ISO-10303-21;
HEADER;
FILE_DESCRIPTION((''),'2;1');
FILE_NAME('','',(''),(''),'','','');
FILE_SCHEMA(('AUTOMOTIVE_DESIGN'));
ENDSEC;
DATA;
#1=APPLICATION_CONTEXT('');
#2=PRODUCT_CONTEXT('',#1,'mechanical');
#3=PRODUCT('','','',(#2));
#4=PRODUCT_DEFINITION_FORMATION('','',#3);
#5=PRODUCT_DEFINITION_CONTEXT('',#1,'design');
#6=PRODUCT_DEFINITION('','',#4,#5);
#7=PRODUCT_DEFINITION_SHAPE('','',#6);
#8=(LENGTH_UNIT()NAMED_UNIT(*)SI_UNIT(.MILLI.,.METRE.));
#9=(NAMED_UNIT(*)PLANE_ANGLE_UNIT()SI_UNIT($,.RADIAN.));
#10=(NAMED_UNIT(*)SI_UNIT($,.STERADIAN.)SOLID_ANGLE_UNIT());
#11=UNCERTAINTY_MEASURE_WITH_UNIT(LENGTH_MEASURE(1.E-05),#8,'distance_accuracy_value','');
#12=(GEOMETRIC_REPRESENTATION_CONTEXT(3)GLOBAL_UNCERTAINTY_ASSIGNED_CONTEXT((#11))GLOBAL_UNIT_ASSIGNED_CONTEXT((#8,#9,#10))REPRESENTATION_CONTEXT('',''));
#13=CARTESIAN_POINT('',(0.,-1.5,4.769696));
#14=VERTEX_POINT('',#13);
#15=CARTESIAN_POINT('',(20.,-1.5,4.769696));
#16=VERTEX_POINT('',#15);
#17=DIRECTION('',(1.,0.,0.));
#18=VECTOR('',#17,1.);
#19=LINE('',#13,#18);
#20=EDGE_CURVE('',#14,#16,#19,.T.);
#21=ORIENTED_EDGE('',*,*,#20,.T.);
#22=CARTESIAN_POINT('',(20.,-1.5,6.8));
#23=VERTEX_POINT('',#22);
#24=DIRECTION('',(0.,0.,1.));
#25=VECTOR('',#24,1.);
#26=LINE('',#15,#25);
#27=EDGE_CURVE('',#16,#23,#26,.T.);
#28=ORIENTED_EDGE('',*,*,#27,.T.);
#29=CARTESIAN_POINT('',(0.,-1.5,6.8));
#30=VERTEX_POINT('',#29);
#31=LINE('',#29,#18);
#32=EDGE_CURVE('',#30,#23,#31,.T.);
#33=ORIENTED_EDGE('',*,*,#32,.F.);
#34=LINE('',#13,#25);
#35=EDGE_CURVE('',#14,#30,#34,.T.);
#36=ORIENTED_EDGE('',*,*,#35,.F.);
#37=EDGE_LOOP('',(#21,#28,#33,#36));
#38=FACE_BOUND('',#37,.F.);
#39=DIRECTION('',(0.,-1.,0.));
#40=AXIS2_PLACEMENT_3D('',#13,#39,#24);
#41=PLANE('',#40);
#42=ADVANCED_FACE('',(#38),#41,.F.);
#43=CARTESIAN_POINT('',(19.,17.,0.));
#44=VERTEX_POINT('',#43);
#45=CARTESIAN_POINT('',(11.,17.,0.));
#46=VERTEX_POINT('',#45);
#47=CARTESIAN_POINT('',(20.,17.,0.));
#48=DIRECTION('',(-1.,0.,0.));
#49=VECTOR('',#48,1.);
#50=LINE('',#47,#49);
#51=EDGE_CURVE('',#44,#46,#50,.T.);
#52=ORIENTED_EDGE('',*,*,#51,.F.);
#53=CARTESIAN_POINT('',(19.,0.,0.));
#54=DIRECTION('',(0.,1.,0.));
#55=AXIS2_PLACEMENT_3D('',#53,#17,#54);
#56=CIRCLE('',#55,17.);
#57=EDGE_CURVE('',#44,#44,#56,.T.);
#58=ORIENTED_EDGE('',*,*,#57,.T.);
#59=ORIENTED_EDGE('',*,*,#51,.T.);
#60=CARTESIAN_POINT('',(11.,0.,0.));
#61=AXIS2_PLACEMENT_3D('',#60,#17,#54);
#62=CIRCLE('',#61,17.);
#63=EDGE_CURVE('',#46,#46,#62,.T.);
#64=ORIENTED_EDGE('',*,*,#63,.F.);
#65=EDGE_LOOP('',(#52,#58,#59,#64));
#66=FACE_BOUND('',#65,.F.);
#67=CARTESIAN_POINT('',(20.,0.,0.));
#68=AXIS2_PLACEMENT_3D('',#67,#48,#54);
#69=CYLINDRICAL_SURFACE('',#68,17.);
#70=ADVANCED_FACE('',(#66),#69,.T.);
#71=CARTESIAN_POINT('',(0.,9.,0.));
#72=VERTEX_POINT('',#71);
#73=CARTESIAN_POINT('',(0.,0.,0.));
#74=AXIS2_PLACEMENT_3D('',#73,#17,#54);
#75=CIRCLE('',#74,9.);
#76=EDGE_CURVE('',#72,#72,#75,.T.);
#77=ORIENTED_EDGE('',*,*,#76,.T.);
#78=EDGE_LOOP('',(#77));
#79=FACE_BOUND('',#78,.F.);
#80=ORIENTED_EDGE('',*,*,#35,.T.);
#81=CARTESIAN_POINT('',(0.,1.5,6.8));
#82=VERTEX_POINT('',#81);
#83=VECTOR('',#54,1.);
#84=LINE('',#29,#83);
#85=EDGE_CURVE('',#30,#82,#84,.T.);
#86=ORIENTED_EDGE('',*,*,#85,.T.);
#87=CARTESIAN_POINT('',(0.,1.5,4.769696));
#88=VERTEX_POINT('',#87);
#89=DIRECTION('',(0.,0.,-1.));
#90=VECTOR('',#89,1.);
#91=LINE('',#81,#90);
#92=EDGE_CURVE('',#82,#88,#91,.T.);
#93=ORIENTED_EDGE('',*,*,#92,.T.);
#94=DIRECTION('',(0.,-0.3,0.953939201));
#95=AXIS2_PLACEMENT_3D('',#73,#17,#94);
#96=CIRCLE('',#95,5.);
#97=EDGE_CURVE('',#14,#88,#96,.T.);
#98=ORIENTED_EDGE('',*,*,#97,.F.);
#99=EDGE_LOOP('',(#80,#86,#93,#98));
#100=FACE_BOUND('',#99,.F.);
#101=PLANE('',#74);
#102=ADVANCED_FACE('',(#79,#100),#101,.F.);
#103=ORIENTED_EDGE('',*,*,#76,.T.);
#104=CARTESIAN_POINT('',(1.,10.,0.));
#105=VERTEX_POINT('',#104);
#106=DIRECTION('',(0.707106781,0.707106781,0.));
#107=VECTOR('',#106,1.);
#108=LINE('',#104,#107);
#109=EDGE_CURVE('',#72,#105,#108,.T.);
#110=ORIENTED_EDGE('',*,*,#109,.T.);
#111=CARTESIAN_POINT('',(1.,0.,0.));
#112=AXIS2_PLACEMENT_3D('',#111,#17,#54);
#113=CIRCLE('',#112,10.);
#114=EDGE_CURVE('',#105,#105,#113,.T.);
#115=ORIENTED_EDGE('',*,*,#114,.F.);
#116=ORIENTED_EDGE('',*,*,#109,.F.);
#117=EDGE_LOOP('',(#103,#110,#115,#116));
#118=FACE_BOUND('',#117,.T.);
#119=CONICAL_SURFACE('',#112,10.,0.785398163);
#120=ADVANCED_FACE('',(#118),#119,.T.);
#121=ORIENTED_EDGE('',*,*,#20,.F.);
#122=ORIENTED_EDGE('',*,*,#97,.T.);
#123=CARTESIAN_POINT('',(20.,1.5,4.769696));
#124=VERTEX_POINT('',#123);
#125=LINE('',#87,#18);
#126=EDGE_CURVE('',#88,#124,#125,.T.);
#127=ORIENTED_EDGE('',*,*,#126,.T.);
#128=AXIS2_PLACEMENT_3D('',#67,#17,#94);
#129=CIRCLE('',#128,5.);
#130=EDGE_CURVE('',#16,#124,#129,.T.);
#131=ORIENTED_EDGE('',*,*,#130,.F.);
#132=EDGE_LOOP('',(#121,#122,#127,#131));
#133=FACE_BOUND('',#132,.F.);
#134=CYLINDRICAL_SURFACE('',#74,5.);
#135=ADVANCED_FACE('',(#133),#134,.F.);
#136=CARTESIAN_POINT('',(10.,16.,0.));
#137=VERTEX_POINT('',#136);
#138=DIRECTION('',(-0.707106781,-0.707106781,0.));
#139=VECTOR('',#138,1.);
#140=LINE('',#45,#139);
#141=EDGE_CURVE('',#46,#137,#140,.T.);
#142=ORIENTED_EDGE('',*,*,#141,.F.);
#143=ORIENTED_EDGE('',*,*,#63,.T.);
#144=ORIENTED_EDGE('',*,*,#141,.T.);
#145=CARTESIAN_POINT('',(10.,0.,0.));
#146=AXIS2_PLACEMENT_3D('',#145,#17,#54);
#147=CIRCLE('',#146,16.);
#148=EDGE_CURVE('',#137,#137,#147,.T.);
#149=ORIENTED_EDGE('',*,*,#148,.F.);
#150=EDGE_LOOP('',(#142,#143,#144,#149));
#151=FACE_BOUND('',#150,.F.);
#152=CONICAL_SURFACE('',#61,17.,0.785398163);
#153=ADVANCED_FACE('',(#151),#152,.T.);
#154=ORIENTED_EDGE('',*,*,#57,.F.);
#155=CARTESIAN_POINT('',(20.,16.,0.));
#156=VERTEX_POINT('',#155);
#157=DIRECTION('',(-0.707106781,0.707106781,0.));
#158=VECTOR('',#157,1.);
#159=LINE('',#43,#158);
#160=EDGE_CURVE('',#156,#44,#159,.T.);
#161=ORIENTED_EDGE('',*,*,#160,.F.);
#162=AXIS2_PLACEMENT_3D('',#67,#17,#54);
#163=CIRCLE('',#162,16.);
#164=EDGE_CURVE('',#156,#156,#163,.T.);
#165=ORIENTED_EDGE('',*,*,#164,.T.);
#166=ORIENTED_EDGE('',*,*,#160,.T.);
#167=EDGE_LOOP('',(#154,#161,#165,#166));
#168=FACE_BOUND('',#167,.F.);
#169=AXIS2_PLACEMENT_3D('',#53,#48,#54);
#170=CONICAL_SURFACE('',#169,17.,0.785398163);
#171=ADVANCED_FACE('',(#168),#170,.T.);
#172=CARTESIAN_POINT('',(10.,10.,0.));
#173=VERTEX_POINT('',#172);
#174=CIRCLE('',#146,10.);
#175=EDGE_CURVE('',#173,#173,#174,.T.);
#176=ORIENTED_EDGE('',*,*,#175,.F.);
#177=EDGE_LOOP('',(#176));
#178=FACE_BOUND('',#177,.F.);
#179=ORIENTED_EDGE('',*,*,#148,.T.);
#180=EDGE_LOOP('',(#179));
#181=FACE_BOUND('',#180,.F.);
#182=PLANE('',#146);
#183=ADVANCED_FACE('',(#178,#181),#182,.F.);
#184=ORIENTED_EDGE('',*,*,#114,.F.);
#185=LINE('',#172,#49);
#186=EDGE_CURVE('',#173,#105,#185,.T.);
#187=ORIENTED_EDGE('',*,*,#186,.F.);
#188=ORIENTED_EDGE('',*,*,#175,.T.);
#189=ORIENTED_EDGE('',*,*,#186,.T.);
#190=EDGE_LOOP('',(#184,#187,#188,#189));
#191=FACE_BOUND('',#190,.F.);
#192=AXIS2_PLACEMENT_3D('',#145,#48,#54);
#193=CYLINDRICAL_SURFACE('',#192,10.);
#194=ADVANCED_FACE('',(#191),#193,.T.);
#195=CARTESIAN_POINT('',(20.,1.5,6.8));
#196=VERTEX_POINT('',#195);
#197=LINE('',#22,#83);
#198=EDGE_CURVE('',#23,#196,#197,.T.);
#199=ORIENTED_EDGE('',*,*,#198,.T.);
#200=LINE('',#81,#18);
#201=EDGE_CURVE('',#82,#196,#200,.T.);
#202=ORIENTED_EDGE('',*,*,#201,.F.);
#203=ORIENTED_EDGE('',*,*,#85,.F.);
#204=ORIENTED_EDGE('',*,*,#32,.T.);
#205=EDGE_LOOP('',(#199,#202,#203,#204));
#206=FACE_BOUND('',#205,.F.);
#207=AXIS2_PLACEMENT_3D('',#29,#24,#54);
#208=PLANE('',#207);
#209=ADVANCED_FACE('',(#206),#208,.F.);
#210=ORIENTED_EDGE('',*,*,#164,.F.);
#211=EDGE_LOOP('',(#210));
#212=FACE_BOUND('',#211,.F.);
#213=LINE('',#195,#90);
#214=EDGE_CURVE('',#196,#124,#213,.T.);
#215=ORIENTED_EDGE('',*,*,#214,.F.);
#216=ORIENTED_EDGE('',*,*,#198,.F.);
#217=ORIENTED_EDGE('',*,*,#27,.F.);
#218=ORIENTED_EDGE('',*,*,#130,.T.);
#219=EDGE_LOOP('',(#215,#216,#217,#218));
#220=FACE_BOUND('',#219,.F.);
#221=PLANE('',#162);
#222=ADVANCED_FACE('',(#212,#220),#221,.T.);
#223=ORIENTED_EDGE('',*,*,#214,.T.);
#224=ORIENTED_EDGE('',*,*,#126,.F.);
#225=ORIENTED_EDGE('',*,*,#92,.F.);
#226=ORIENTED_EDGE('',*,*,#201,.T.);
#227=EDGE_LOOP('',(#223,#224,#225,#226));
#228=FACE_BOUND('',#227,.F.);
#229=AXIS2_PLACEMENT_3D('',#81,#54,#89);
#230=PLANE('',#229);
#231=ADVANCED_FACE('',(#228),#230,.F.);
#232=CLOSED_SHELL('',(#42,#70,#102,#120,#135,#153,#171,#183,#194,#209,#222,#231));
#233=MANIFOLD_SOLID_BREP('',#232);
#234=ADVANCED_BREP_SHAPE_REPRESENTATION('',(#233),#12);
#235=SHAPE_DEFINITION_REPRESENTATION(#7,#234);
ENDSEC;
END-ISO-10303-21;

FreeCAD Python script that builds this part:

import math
import FreeCAD as App
import Part
import Sketcher
from FreeCAD import Vector
Q = App.Units.Quantity


def edges_at(feature, points):
    """Names of the edges that pass closest to the given points."""
    edges = feature.Shape.Edges
    near = lambda p: min(range(len(edges)), key=lambda i: edges[i].distToShape(Part.Vertex(*p))[0])
    return sorted({f"Edge{near(p) + 1}" for p in points})


def add_polygon(sketch, points):
    """Adds a closed chain of lines whose ends are joined by coincident constraints."""
    first, n = sketch.GeometryCount, len(points)
    for a, b in zip(points, points[1:] + points[:1]):
        sketch.addGeometry(Part.LineSegment(App.Vector(*a, 0), App.Vector(*b, 0)), False)
    for i in range(n):
        sketch.addConstraint(Sketcher.Constraint("Coincident", first + i, 2, first + (i + 1) % n, 1))

doc = App.newDocument("Part")
params = doc.addObject("Spreadsheet::Sheet", "Params")
for row, (alias, value) in enumerate([
    ("sketch1_width", "20 mm"),
    ("sketch1_height", "5 mm"),
    ("sketch1_height2", "12 mm"),
    ("revolution_angle", "360 deg"),
    ("chamfer_size", "1 mm"),
    ("sketch2_radius", "5 mm"),
    ("sketch2_width", "3 mm"),
    ("pocket1_length", "20 mm"),
], start=1):
    params.set(f"A{row}", alias)
    params.set(f"B{row}", "=" + value)
    params.setAlias(f"B{row}", alias)

body = doc.addObject("PartDesign::Body", "Body")

sketch1 = body.newObject("Sketcher::SketchObject", "Sketch")
sketch1.AttachmentSupport = (doc.getObject("XY_Plane"), [""])
sketch1.MapMode = "FlatFace"
add_polygon(sketch1, [(0, 10), (0, 5), (20, 5), (20, 17), (10, 17), (10, 10)])
sketch1.addConstraint(Sketcher.Constraint("Vertical", 0))
sketch1.addConstraint(Sketcher.Constraint("Horizontal", 1))
sketch1.addConstraint(Sketcher.Constraint("Vertical", 2))
sketch1.addConstraint(Sketcher.Constraint("Horizontal", 3))
sketch1.addConstraint(Sketcher.Constraint("Vertical", 4))
sketch1.addConstraint(Sketcher.Constraint("Horizontal", 5))
sketch1.addConstraint(Sketcher.Constraint("PointOnObject", 0, 2, -2))
sketch1.addConstraint(Sketcher.Constraint("Equal", 3, 5))
sketch1.addConstraint(Sketcher.Constraint("DistanceX", 1, 1, 1, 2, Q("20 mm")))
sketch1.addConstraint(Sketcher.Constraint("DistanceY", 0, 2, 0, 1, Q("5 mm")))
sketch1.addConstraint(Sketcher.Constraint("DistanceY", 2, 1, 2, 2, Q("12 mm")))
sketch1.addConstraint(Sketcher.Constraint("DistanceY", -1, 1, 0, 2, Q("5 mm")))
sketch1.setExpression("Constraints[14]", "Params.sketch1_width")
sketch1.setExpression("Constraints[15]", "Params.sketch1_height")
sketch1.setExpression("Constraints[16]", "Params.sketch1_height2")
revolution = body.newObject("PartDesign::Revolution", "Revolution")
revolution.Profile = sketch1
revolution.ReferenceAxis = (sketch1, ["H_Axis"])
revolution.setExpression("Angle", "Params.revolution_angle")
doc.recompute()

chamfer = body.newObject("PartDesign::Chamfer", "Chamfer")
chamfer.Base = (revolution, edges_at(revolution, [(0, -10, 0), (10, -17, 0), (20, -17, 0)]))
chamfer.setExpression("Size", "Params.chamfer_size")

sketch2 = body.newObject("Sketcher::SketchObject", "Sketch001")
sketch2.AttachmentSupport = (doc.getObject("YZ_Plane"), [""])
sketch2.MapMode = "FlatFace"
sketch2.addGeometry(Part.LineSegment(Vector(-1.5, 6.8, 0), Vector(1.5, 6.8, 0)), False)
sketch2.addGeometry(Part.LineSegment(Vector(1.5, 6.8, 0), Vector(1.5, 4.769696, 0)), False)
sketch2.addGeometry(Part.ArcOfCircle(Part.Circle(Vector(0, 0, 0), Vector(0, 0, 1), 5), math.radians(72.542396), math.radians(107.457604)), False)
sketch2.addGeometry(Part.LineSegment(Vector(-1.5, 4.769696, 0), Vector(-1.5, 6.8, 0)), False)
sketch2.addConstraint(Sketcher.Constraint("Coincident", 0, 2, 1, 1))
sketch2.addConstraint(Sketcher.Constraint("Coincident", 1, 2, 2, 1))
sketch2.addConstraint(Sketcher.Constraint("Coincident", 2, 2, 3, 1))
sketch2.addConstraint(Sketcher.Constraint("Coincident", 3, 2, 0, 1))
sketch2.addConstraint(Sketcher.Constraint("Horizontal", 0))
sketch2.addConstraint(Sketcher.Constraint("Vertical", 1))
sketch2.addConstraint(Sketcher.Constraint("Vertical", 3))
sketch2.addConstraint(Sketcher.Constraint("Coincident", 2, 3, -1, 1))
sketch2.addConstraint(Sketcher.Constraint("Horizontal", 1, 2, 2, 2))
sketch2.addConstraint(Sketcher.Constraint("Radius", 2, Q("5 mm")))
sketch2.addConstraint(Sketcher.Constraint("DistanceX", 0, 1, 0, 2, Q("3 mm")))
sketch2.addConstraint(Sketcher.Constraint("DistanceY", -1, 1, 0, 2, Q("6.8 mm")))
sketch2.setExpression("Constraints[9]", "Params.sketch2_radius")
sketch2.setExpression("Constraints[10]", "Params.sketch2_width")
pocket1 = body.newObject("PartDesign::Pocket", "Pocket")
pocket1.Profile = sketch2
pocket1.setExpression("Length", "Params.pocket1_length")
pocket1.Reversed = True

doc.recompute()
